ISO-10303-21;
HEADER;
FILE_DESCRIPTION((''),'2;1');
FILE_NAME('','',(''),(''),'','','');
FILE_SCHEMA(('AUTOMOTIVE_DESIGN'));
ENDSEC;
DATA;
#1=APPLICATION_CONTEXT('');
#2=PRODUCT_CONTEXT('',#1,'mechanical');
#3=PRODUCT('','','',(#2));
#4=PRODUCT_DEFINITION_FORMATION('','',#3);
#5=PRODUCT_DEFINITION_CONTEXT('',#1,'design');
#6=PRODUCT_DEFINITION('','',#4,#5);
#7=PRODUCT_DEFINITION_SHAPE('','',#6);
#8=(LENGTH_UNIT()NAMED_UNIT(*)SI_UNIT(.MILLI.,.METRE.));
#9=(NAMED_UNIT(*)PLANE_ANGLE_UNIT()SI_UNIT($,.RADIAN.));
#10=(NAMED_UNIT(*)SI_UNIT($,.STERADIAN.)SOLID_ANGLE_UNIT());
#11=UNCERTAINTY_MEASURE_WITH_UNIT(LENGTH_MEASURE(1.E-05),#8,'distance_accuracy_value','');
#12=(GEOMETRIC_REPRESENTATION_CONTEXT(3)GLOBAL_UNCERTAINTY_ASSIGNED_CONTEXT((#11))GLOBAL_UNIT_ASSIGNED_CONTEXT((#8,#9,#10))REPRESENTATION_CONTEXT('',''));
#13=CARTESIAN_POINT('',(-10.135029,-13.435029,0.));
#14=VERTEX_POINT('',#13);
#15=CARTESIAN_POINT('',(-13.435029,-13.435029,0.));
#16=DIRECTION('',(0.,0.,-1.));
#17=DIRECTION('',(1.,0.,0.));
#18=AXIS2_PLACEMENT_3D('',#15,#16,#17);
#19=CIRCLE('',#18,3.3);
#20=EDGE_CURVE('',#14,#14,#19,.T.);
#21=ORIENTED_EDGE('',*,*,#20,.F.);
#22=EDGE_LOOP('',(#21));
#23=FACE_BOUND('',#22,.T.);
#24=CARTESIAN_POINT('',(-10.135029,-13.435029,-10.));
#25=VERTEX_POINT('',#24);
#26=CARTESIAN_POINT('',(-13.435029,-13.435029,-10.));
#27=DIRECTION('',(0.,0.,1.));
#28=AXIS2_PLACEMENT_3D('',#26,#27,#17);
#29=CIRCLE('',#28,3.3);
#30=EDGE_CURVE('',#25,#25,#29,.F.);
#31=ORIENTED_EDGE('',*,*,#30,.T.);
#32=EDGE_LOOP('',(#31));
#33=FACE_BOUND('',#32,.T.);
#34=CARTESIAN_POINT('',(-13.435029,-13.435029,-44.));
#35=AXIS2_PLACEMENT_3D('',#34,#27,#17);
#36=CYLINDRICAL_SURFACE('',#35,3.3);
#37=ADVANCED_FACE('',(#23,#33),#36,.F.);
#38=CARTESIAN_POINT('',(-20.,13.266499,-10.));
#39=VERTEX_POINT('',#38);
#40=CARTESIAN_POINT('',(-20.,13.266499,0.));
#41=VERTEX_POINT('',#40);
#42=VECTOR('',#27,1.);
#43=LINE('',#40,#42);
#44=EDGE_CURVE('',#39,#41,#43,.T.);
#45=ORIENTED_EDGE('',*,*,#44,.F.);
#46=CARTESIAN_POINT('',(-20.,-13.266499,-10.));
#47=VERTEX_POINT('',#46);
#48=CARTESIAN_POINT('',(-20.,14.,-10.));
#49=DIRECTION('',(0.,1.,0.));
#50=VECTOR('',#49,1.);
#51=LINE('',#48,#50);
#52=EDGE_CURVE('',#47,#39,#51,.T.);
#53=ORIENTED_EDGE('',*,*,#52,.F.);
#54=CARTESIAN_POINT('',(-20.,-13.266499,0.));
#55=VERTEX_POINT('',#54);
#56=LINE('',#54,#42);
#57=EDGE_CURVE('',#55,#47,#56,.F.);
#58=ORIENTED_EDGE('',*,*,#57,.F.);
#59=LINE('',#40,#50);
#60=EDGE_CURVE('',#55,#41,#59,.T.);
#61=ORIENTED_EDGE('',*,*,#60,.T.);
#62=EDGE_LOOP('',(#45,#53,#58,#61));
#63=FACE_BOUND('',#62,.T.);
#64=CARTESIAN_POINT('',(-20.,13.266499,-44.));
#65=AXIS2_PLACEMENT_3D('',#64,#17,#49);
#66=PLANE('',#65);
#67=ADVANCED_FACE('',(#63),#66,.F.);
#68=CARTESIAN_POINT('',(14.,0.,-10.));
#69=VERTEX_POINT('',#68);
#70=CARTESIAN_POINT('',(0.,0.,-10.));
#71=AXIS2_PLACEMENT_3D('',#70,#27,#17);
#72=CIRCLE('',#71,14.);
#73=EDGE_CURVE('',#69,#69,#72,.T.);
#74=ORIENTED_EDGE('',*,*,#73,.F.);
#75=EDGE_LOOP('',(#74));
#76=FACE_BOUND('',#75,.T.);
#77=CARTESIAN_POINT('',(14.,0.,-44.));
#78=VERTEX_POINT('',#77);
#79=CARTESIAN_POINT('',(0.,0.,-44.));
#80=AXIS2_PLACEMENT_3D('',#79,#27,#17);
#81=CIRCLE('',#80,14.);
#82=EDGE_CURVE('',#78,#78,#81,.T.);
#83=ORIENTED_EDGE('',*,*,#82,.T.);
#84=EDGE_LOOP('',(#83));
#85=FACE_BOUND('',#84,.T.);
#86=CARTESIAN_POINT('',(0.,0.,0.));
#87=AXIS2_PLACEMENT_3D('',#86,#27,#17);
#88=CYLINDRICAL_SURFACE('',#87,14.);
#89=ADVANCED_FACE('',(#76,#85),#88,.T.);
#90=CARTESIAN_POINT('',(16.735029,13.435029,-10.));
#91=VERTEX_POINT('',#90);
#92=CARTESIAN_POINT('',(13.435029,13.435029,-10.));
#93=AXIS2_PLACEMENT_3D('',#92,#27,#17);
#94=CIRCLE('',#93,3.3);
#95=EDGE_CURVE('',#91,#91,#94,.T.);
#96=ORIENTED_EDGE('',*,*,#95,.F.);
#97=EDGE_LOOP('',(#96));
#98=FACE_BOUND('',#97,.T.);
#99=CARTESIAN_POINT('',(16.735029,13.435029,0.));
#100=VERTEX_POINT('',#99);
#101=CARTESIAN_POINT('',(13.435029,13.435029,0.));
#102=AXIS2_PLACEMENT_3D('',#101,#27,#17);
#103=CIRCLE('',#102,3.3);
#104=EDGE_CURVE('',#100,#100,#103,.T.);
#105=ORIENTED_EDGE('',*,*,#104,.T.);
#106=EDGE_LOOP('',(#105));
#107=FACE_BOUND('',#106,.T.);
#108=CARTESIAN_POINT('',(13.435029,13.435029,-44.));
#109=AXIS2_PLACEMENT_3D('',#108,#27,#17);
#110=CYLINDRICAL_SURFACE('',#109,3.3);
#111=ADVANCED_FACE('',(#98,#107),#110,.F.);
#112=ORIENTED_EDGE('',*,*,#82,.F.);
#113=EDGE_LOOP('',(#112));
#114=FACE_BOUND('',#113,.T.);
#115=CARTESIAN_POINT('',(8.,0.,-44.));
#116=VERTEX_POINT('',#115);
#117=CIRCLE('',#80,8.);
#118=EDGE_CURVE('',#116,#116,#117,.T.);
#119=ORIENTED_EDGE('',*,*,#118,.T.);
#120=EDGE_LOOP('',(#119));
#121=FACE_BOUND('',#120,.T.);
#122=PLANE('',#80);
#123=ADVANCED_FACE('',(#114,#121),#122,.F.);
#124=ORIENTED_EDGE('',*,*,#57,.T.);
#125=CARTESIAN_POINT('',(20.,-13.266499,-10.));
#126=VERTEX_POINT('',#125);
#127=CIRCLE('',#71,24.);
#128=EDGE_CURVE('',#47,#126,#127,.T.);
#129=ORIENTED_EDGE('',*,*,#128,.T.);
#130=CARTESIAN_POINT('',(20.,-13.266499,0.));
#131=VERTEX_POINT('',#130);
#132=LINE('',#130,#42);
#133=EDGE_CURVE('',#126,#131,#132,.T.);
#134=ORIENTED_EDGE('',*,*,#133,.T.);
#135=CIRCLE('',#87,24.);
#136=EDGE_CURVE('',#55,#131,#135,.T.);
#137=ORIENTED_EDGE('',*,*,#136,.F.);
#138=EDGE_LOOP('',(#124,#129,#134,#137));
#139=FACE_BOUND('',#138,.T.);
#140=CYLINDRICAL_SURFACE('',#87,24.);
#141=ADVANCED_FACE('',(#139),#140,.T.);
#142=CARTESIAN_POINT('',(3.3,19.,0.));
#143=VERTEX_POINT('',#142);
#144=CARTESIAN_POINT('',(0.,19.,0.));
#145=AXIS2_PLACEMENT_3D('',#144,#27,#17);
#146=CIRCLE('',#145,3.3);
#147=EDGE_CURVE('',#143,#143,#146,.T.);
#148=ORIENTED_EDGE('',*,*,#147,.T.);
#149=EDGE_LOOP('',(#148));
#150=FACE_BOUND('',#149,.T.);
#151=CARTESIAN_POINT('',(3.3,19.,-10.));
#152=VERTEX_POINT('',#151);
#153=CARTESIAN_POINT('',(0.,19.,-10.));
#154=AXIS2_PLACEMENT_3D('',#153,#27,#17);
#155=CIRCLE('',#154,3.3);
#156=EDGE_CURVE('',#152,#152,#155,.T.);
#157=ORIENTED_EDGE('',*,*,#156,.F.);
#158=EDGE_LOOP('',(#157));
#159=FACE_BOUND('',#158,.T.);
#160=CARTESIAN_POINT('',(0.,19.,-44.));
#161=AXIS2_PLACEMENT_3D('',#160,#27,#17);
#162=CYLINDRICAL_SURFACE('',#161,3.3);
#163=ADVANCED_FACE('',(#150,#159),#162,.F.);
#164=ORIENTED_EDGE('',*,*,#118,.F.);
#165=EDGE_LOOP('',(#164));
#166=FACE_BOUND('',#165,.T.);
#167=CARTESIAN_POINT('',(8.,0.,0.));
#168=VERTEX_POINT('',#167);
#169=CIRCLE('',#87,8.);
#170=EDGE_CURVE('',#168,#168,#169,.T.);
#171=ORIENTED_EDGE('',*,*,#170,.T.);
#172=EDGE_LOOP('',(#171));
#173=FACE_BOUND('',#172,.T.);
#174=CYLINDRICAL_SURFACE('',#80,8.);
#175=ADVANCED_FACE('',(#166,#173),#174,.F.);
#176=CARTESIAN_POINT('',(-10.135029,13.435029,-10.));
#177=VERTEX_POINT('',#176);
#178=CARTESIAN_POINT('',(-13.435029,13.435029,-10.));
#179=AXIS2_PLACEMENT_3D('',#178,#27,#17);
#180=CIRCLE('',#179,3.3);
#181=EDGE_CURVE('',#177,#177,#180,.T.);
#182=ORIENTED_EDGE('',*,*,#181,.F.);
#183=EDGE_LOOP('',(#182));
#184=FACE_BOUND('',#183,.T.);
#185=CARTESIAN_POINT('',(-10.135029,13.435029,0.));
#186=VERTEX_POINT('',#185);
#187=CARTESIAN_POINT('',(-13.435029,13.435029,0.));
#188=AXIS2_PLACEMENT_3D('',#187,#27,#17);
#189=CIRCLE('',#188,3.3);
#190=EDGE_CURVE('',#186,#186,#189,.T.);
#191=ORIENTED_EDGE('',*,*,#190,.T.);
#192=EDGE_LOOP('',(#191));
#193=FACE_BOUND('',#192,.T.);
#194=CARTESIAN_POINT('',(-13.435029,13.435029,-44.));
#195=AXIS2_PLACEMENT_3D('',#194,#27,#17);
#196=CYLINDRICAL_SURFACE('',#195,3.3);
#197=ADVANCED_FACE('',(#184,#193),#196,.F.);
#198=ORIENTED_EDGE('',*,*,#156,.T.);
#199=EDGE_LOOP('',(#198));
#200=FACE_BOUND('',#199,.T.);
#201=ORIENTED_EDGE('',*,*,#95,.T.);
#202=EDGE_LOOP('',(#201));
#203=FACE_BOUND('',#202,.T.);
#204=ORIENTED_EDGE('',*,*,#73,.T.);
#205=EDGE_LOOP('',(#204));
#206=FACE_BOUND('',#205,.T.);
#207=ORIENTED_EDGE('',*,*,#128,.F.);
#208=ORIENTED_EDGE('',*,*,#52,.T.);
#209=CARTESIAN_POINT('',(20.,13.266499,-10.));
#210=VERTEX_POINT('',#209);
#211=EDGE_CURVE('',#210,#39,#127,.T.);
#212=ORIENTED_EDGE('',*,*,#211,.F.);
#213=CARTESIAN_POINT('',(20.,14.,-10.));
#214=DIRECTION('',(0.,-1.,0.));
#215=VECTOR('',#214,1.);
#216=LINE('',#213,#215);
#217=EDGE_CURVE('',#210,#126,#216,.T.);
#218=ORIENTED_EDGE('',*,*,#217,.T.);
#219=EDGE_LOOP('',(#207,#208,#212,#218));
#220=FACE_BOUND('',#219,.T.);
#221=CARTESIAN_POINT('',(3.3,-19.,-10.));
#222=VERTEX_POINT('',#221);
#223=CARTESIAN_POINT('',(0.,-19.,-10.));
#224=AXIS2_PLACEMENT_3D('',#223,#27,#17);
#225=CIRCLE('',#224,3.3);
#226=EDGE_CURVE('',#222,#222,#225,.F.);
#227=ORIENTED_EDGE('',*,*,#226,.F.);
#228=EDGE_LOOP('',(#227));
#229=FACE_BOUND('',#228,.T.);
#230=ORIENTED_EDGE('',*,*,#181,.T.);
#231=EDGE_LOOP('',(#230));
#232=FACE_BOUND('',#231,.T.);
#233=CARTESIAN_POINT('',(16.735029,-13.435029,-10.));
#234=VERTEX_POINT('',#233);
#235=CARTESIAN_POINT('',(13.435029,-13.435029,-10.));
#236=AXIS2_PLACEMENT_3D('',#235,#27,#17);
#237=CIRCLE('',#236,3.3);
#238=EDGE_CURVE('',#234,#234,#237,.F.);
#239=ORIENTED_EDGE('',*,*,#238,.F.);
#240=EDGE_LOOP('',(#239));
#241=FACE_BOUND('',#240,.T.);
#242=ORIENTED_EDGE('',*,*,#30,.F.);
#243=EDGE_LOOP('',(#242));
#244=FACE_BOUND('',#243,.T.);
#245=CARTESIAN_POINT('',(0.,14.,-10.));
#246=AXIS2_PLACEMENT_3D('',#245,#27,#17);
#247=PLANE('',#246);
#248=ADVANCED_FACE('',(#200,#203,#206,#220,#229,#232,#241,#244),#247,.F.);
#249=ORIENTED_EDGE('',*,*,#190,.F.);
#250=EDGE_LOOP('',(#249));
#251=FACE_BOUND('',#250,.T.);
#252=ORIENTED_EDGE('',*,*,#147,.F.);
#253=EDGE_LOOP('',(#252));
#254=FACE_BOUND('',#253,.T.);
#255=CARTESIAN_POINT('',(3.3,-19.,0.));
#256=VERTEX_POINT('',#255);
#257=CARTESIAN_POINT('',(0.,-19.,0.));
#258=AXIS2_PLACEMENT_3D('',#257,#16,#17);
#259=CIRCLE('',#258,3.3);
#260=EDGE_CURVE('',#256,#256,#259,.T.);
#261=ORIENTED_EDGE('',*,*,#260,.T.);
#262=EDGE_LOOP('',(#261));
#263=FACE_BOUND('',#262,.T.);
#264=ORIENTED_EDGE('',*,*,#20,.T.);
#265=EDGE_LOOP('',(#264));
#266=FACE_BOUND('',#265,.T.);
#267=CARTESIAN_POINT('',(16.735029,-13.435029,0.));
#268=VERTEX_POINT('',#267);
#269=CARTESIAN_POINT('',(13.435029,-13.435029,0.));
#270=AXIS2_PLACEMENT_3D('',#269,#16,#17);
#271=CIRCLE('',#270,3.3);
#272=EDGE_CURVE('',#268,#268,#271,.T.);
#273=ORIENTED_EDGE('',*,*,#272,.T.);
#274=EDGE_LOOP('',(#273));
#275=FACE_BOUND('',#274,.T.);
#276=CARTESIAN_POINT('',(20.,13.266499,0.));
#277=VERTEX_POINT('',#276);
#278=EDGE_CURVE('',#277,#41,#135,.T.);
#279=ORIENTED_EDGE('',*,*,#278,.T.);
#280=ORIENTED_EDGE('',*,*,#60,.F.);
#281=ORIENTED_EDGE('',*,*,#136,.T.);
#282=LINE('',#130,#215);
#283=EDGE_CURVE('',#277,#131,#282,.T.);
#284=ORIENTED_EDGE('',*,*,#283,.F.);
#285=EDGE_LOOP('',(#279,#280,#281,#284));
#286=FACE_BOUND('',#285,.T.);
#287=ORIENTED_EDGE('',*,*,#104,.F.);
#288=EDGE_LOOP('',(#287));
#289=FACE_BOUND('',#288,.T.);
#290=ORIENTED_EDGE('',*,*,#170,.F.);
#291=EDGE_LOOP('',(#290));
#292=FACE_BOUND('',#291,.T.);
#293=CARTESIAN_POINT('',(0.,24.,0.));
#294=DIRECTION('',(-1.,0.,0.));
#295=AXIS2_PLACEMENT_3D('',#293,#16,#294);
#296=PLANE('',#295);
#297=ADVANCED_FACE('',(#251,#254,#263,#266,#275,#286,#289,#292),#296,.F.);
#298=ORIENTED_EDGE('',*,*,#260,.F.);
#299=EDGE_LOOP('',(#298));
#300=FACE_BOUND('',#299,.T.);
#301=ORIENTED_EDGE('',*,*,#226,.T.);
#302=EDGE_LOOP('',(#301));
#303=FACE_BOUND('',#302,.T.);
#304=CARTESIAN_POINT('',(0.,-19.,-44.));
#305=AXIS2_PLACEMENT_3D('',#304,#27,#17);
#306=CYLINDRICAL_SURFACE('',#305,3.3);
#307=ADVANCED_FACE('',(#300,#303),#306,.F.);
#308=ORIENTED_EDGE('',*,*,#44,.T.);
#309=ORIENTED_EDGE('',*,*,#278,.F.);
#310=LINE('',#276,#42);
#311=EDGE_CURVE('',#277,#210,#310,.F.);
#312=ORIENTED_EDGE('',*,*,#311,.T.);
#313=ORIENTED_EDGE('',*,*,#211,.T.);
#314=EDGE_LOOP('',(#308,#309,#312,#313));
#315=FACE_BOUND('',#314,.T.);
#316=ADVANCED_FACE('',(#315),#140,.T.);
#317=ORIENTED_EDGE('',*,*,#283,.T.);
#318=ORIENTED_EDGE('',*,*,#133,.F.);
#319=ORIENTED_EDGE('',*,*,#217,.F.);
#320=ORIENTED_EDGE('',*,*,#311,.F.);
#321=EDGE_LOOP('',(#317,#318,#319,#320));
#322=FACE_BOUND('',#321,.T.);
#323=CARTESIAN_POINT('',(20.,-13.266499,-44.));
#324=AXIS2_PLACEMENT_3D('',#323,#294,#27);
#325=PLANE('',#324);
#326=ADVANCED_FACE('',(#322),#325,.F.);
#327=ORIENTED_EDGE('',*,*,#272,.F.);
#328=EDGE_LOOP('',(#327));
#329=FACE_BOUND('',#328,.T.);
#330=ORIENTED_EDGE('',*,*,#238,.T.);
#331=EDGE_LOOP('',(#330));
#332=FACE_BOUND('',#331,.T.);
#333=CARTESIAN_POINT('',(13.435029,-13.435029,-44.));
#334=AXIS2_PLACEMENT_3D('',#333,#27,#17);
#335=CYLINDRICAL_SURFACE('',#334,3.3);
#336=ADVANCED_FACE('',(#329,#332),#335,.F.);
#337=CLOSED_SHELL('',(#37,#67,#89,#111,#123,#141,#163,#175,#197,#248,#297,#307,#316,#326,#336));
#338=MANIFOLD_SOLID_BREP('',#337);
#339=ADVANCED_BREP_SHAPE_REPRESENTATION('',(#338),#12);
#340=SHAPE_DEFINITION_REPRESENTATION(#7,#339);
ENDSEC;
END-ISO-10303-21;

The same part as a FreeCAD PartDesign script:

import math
import FreeCAD as App
import Part
import Sketcher


def add_polygon(sketch, points):
    """Adds a closed chain of lines whose ends are joined by coincident constraints."""
    first, n = sketch.GeometryCount, len(points)
    for a, b in zip(points, points[1:] + points[:1]):
        sketch.addGeometry(Part.LineSegment(App.Vector(*a, 0), App.Vector(*b, 0)), False)
    for i in range(n):
        sketch.addConstraint(Sketcher.Constraint("Coincident", first + i, 2, first + (i + 1) % n, 1))

doc = App.newDocument("Part")
params = doc.addObject("Spreadsheet::Sheet", "Params")
for row, (alias, value) in enumerate([
    ("sketch1_width", "14 mm"),
    ("sketch1_width2", "10 mm"),
    ("sketch1_height", "44 mm"),
    ("revolution_angle", "360 deg"),
    ("sketch2_diameter", "16 mm"),
    ("sketch2_radius", "24 mm"),
    ("sketch2_diameter2", "6.6 mm"),
], start=1):
    params.set(f"A{row}", alias)
    params.set(f"B{row}", "=" + value)
    params.setAlias(f"B{row}", alias)

body = doc.addObject("PartDesign::Body", "Body")

# Sketch on YZ plane
sketch1 = body.newObject("Sketcher::SketchObject", "Sketch")
sketch1.AttachmentSupport = (doc.getObject("YZ_Plane"), [""])
sketch1.MapMode = "FlatFace"
add_polygon(sketch1, [(0, 0), (0, -44), (14, -44), (14, -10), (24, -10), (24, 0)])  # lines 0-5
sketch1.addConstraint(Sketcher.Constraint("Vertical", 0))
sketch1.addConstraint(Sketcher.Constraint("Horizontal", 1))
sketch1.addConstraint(Sketcher.Constraint("Vertical", 2))
sketch1.addConstraint(Sketcher.Constraint("Horizontal", 3))
sketch1.addConstraint(Sketcher.Constraint("Vertical", 4))
sketch1.addConstraint(Sketcher.Constraint("Horizontal", 5))
sketch1.addConstraint(Sketcher.Constraint("Coincident", 5, 2, -1, 1))
sketch1.addConstraint(Sketcher.Constraint("Equal", 3, 4))
sketch1.addConstraint(Sketcher.Constraint("DistanceX", 1, 1, 1, 2, 14.0))
sketch1.addConstraint(Sketcher.Constraint("DistanceX", 3, 1, 3, 2, 10.0))
sketch1.addConstraint(Sketcher.Constraint("DistanceY", 0, 2, 0, 1, 44.0))
sketch1.setExpression("Constraints[14]", "Params.sketch1_width")
sketch1.setExpression("Constraints[15]", "Params.sketch1_width2")
sketch1.setExpression("Constraints[16]", "Params.sketch1_height")
revolution = body.newObject("PartDesign::Revolution", "Revolution")
revolution.Profile = sketch1
revolution.ReferenceAxis = (sketch1, ["V_Axis"])
revolution.setExpression("Angle", "Params.revolution_angle")

# Sketch on XY plane
sketch2 = body.newObject("Sketcher::SketchObject", "Sketch001")
sketch2.AttachmentSupport = (doc.getObject("XY_Plane"), [""])
sketch2.MapMode = "FlatFace"
sketch2.addGeometry(Part.Circle(App.Vector(-13.4, 13.4, 0), App.Vector(0, 0, 1), 3.3), False)
sketch2.addGeometry(Part.Circle(App.Vector(0, 19, 0), App.Vector(0, 0, 1), 3.3), False)
sketch2.addGeometry(Part.Circle(App.Vector(13.4, 13.4, 0), App.Vector(0, 0, 1), 3.3), False)
sketch2.addGeometry(Part.Circle(App.Vector(0, 0, 0), App.Vector(0, 0, 1), 8), False)
sketch2.addGeometry(Part.LineSegment(App.Vector(-20, -13.3, 0), App.Vector(-20, 13.3, 0)), False)
sketch2.addGeometry(Part.ArcOfCircle(Part.Circle(App.Vector(0, 0, 0), App.Vector(0, 0, 1), 24), math.radians(146), math.radians(214)), False)
sketch2.addGeometry(Part.LineSegment(App.Vector(20, 13.3, 0), App.Vector(20, -13.3, 0)), False)
sketch2.addGeometry(Part.ArcOfCircle(Part.Circle(App.Vector(0, 0, 0), App.Vector(0, 0, 1), 24), math.radians(-34), math.radians(34)), False)
sketch2.addConstraint(Sketcher.Constraint("Coincident", 4, 1, 5, 2))
sketch2.addConstraint(Sketcher.Constraint("Coincident", 5, 1, 4, 2))
sketch2.addConstraint(Sketcher.Constraint("Coincident", 6, 1, 7, 2))
sketch2.addConstraint(Sketcher.Constraint("Coincident", 7, 1, 6, 2))
sketch2.addConstraint(Sketcher.Constraint("Vertical", 4))
sketch2.addConstraint(Sketcher.Constraint("Vertical", 6))
sketch2.addConstraint(Sketcher.Constraint("Coincident", 3, 3, -1, 1))
sketch2.addConstraint(Sketcher.Constraint("Coincident", 5, 3, -1, 1))
sketch2.addConstraint(Sketcher.Constraint("Coincident", 7, 3, -1, 1))
sketch2.addConstraint(Sketcher.Constraint("Equal", 0, 1))
sketch2.addConstraint(Sketcher.Constraint("Equal", 1, 2))
sketch2.addConstraint(Sketcher.Constraint("Equal", 5, 7))
sketch2.addConstraint(Sketcher.Constraint("Symmetric", 0, 3, 2, 3, -2))
sketch2.addConstraint(Sketcher.Constraint("PointOnObject", 1, 3, -2))
sketch2.addConstraint(Sketcher.Constraint("Horizontal", 5, 1, 6, 1))
sketch2.addConstraint(Sketcher.Constraint("Diameter", 3, 16.0))
sketch2.addConstraint(Sketcher.Constraint("Radius", 5, 24.0))
sketch2.addConstraint(Sketcher.Constraint("Diameter", 0, 6.6))
sketch2.addConstraint(Sketcher.Constraint("DistanceY", -1, 1, 1, 3, 19.0))
sketch2.addConstraint(Sketcher.Constraint("DistanceX", 4, 1, -1, 1, 20.0))
sketch2.addConstraint(Sketcher.Constraint("DistanceX", 0, 3, -1, 1, 13.435029))
sketch2.addConstraint(Sketcher.Constraint("DistanceY", -1, 1, 0, 3, 13.435029))
sketch2.setExpression("Constraints[15]", "Params.sketch2_diameter")
sketch2.setExpression("Constraints[16]", "Params.sketch2_radius")
sketch2.setExpression("Constraints[17]", "Params.sketch2_diameter2")
pocket1 = body.newObject("PartDesign::Pocket", "Pocket")
pocket1.Profile = sketch2
pocket1.Type = "ThroughAll"
doc.recompute()

mirrored = body.newObject("PartDesign::Mirrored", "Mirrored")
mirrored.Originals = [pocket1]
mirrored.MirrorPlane = (doc.getObject("XZ_Plane"), [""])
body.Tip = mirrored

doc.recompute()
